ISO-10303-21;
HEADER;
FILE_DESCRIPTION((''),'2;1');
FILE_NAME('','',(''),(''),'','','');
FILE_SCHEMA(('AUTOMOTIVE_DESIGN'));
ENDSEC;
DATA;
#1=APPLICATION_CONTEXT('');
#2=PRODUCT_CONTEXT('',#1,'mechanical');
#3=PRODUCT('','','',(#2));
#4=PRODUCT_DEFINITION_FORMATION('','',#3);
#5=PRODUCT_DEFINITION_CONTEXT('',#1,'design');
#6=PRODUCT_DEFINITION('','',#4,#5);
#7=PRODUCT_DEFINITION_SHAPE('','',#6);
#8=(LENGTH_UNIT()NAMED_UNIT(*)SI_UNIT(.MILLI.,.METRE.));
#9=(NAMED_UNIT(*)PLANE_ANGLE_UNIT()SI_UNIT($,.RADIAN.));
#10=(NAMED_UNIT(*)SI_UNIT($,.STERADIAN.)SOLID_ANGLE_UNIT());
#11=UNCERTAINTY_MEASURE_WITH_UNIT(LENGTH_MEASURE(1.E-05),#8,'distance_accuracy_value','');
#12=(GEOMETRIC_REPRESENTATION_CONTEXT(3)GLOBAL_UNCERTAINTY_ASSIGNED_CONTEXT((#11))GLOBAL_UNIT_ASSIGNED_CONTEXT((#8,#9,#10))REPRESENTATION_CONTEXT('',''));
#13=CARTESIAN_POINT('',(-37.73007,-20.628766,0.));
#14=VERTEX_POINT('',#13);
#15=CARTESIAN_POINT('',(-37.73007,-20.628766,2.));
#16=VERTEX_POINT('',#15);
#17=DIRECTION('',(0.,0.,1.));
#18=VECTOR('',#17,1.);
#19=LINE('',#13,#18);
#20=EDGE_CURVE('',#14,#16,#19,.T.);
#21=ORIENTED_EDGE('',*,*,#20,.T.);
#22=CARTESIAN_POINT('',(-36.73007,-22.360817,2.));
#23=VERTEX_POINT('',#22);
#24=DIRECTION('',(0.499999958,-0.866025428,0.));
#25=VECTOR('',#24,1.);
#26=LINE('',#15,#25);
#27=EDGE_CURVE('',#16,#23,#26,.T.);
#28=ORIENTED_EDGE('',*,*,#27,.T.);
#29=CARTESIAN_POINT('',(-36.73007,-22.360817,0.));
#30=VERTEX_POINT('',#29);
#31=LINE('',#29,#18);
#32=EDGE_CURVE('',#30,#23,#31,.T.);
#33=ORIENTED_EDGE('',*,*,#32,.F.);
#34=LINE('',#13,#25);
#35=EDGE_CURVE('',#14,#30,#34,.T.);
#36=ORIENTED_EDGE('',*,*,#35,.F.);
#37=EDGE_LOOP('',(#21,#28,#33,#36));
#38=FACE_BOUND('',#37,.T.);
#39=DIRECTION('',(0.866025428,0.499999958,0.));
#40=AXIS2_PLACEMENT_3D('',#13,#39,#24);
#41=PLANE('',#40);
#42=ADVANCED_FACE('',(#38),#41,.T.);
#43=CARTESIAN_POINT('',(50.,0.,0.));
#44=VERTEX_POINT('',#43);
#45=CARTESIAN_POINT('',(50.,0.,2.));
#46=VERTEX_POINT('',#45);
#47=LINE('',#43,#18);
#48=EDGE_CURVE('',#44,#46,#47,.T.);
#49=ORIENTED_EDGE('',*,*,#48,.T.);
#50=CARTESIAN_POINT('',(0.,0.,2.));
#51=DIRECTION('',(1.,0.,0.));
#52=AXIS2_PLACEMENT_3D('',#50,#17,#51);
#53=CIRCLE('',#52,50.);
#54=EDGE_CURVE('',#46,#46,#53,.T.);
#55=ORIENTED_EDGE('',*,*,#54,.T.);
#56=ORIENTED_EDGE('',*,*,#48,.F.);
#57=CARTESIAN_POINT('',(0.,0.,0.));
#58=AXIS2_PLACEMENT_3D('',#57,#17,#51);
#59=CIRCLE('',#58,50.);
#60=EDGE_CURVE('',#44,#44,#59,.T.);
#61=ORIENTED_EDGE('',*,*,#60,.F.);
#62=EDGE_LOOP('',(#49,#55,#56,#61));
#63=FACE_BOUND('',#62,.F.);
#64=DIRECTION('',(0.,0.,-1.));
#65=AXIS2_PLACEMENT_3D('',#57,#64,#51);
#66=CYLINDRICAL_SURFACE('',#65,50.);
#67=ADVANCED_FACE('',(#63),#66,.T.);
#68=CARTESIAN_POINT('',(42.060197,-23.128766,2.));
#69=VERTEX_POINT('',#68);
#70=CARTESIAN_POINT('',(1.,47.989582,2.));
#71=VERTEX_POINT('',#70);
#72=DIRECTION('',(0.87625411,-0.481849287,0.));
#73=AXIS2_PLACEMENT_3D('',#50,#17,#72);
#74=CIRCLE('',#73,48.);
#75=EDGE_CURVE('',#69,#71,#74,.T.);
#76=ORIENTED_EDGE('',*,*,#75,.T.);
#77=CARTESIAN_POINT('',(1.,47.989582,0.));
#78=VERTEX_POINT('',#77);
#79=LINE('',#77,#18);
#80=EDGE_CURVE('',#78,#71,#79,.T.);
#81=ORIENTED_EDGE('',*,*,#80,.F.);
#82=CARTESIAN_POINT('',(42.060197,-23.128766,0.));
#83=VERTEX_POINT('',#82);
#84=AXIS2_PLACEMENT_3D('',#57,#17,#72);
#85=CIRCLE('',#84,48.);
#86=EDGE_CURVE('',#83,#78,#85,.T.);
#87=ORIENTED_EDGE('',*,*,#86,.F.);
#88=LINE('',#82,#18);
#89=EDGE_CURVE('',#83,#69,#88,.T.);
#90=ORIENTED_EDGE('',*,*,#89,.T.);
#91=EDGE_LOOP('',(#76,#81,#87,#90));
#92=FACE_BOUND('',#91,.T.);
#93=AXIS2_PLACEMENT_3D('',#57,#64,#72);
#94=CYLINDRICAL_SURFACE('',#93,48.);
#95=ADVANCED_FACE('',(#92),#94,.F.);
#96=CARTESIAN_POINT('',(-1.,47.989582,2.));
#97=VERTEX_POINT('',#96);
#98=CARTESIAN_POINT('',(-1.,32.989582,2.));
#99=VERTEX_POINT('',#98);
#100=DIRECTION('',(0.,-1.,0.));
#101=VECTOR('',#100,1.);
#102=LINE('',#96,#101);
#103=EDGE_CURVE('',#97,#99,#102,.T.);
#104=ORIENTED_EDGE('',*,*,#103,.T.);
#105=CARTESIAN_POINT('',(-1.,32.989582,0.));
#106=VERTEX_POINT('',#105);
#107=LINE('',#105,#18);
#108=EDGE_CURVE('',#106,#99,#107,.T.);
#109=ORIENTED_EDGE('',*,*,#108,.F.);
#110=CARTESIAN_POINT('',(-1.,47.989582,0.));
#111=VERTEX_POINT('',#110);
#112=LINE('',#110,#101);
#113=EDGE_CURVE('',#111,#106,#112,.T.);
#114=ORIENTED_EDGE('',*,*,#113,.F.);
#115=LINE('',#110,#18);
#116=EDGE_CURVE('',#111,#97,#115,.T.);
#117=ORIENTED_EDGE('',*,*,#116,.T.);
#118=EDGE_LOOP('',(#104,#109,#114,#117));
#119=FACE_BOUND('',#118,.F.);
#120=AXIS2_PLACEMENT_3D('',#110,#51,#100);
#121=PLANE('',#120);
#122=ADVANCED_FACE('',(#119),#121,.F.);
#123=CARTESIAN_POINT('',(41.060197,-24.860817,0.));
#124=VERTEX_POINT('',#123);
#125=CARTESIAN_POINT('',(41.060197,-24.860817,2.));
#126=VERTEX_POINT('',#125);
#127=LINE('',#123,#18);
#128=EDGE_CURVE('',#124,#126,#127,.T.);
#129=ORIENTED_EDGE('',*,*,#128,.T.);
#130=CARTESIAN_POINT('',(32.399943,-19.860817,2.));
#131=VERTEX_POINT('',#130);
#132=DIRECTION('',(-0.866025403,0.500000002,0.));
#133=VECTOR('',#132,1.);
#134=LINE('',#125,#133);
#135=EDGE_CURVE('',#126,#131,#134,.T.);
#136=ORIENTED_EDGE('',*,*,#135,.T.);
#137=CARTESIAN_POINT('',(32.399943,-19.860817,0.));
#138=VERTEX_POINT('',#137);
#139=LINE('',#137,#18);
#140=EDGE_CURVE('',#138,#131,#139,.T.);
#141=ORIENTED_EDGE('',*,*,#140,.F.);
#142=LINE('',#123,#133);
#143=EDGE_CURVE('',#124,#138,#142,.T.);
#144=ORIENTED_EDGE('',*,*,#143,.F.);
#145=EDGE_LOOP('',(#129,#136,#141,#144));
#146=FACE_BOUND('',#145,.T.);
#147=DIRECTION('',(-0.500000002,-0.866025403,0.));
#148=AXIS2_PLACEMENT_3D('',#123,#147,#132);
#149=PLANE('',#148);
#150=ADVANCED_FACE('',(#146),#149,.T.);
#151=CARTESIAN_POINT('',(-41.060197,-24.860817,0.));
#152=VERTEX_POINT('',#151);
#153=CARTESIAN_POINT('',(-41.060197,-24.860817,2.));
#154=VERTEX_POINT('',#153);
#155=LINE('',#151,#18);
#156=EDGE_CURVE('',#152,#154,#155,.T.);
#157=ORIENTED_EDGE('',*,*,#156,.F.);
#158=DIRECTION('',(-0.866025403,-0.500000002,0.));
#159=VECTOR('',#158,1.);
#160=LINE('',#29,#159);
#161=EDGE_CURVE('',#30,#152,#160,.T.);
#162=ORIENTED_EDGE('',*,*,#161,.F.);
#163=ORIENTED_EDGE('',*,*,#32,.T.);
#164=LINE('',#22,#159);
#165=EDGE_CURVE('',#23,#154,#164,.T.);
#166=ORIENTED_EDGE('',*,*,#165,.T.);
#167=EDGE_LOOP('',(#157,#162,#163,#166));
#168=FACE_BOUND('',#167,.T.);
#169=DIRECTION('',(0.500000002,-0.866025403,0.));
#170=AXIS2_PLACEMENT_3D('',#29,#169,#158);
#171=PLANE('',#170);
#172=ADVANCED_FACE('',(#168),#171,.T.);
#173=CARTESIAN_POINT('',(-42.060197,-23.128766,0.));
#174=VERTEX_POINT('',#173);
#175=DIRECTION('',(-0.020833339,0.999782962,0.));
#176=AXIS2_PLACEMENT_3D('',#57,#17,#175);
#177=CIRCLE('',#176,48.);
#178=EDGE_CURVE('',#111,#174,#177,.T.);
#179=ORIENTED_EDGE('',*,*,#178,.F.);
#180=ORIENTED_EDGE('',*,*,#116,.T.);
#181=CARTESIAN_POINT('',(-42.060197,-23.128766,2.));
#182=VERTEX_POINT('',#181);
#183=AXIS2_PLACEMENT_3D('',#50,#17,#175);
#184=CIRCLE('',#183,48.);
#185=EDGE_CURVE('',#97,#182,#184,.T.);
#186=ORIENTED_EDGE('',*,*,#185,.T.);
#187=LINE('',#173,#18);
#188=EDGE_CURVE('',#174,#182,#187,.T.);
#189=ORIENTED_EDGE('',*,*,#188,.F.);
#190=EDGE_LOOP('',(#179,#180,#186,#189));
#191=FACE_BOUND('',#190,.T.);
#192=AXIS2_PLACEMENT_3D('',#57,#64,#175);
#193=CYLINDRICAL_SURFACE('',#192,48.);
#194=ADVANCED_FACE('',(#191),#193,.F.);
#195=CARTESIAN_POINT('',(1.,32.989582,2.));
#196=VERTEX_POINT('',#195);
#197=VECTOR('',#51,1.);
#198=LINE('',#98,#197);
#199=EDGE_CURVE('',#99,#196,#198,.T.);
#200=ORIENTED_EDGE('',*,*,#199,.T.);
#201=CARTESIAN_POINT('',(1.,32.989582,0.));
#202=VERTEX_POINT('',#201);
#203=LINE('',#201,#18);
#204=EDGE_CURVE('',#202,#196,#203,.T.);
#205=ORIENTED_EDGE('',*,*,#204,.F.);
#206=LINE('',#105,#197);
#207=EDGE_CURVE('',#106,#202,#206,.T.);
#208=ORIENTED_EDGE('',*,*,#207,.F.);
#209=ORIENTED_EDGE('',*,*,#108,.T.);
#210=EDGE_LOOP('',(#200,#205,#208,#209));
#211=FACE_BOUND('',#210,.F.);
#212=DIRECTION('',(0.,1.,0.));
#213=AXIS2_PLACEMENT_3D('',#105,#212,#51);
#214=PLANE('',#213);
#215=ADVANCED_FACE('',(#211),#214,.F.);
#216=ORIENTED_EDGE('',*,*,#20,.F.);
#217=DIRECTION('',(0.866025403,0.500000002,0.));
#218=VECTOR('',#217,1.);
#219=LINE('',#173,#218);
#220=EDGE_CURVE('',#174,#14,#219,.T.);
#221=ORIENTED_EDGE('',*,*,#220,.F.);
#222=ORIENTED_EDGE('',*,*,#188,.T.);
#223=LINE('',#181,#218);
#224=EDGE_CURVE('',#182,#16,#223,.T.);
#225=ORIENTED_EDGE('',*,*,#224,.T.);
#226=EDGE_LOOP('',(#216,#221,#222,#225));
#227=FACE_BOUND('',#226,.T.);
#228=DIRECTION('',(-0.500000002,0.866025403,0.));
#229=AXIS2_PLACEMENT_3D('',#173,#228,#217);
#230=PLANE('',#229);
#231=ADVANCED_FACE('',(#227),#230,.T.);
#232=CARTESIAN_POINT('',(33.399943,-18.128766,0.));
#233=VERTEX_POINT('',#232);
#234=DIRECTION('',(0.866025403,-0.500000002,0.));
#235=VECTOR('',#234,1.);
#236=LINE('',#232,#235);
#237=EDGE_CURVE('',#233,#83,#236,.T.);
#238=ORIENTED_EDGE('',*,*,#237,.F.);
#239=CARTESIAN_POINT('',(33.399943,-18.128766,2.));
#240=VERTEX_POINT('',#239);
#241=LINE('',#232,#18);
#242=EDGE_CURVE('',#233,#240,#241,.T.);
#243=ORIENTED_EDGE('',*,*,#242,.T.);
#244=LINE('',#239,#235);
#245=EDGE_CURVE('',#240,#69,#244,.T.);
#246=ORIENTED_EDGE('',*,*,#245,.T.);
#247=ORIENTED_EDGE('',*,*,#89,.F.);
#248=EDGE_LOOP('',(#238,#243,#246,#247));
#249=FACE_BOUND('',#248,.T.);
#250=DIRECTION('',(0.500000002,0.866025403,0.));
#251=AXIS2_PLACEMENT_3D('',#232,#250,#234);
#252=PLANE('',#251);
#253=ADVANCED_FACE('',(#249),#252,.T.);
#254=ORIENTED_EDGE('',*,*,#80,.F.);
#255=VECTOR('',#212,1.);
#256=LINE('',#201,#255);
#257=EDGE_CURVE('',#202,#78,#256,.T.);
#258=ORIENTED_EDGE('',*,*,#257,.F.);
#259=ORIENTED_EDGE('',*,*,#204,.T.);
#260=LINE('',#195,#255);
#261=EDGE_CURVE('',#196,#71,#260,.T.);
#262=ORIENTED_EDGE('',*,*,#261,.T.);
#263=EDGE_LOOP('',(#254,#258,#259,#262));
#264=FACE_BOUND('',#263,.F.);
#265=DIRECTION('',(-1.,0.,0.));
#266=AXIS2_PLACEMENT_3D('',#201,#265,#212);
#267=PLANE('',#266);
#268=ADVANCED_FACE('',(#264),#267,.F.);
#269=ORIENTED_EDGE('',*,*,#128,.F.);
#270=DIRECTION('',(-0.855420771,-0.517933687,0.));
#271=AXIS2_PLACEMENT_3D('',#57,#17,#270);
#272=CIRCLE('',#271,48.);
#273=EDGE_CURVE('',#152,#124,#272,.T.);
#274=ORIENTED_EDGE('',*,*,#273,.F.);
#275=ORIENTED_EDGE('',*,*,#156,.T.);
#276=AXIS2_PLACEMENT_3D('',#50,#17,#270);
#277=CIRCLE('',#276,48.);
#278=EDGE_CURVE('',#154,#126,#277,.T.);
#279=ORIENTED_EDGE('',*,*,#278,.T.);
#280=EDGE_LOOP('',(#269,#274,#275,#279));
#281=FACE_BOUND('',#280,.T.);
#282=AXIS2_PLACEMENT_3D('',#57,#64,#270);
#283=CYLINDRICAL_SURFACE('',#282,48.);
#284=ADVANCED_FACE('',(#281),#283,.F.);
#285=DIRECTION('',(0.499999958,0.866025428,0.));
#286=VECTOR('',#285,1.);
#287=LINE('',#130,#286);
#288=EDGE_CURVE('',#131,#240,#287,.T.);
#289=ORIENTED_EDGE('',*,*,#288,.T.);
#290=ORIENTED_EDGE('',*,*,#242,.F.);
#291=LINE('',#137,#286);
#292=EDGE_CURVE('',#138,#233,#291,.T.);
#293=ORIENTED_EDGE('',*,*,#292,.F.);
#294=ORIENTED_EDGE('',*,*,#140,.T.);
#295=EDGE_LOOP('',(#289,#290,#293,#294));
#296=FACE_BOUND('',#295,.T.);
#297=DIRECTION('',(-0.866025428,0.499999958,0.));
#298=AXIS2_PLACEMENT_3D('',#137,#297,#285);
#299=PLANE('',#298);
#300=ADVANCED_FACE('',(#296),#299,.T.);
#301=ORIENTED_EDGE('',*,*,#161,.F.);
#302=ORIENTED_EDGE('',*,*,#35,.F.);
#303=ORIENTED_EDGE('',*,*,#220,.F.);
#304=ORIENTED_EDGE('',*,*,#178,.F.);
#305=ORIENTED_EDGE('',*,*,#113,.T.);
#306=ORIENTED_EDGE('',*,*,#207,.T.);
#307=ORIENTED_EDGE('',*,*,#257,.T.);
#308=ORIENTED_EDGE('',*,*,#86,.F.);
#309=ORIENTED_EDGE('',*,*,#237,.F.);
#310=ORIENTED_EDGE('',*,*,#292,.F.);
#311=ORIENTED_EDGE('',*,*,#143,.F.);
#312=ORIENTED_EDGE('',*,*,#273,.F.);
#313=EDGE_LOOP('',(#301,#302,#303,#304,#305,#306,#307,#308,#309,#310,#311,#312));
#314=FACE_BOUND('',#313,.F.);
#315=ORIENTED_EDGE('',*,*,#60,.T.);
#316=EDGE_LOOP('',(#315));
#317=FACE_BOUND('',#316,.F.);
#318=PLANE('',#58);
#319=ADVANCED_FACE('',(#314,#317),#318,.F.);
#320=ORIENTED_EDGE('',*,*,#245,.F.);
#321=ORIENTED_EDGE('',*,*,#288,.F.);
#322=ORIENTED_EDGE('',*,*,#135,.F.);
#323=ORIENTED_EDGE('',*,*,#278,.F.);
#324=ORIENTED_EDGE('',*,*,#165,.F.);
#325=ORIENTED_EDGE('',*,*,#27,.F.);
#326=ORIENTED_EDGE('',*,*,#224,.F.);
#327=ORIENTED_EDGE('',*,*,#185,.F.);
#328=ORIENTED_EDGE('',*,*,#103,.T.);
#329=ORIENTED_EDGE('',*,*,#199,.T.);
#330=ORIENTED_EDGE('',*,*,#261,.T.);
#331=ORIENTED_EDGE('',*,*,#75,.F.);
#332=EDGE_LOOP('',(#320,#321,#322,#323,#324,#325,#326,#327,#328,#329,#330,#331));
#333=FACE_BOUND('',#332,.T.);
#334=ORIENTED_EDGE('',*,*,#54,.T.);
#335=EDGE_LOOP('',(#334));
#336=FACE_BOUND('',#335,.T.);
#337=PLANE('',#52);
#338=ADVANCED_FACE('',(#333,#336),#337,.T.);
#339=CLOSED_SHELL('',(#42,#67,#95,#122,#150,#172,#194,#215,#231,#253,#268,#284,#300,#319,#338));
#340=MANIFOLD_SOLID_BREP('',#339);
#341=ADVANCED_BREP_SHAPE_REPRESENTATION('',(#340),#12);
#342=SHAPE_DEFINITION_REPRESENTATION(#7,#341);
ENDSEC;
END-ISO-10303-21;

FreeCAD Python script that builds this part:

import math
import FreeCAD as App
import Part
import Sketcher

V = App.Vector
Q = App.Units.Quantity

doc = App.newDocument("Part")
params = doc.addObject("Spreadsheet::Sheet", "Params")
for row, (alias, value) in enumerate([
    ("sketch1_diameter", "100 mm"),
    ("sketch1_radius", "48 mm"),
    ("sketch1_width", "2 mm"),
    ("sketch1_height", "15 mm"),
    ("sketch1_length", "10 mm"),
    ("pad1_length", "2 mm"),
], start=1):
    params.set(f"A{row}", alias)
    params.set(f"B{row}", "=" + value)
    params.setAlias(f"B{row}", alias)

body = doc.addObject("PartDesign::Body", "Body")

sketch1 = body.newObject("Sketcher::SketchObject", "Sketch")
sketch1.AttachmentSupport = (doc.getObject("XY_Plane"), [""])
sketch1.MapMode = "FlatFace"
sketch1.addGeometry([
    Part.Circle(V(0, 0, 0), V(0, 0, 1), 50),
    Part.ArcOfCircle(Part.Circle(V(0, 0, 0), V(0, 0, 1), 48), math.radians(91), math.radians(209)),
    Part.LineSegment(V(-1, 48, 0), V(-1, 33, 0)),
    Part.LineSegment(V(-1, 33, 0), V(1, 33, 0)),
    Part.LineSegment(V(1, 33, 0), V(1, 48, 0)),
    Part.ArcOfCircle(Part.Circle(V(0, 0, 0), V(0, 0, 1), 48), math.radians(-29), math.radians(89)),
    Part.LineSegment(V(42.1, -23.1, 0), V(33.4, -18.1, 0)),
    Part.LineSegment(V(33.4, -18.1, 0), V(32.4, -19.9, 0)),
    Part.LineSegment(V(32.4, -19.9, 0), V(41.1, -24.9, 0)),
    Part.ArcOfCircle(Part.Circle(V(0, 0, 0), V(0, 0, 1), 48), math.radians(-149), math.radians(-31)),
    Part.LineSegment(V(-41.1, -24.9, 0), V(-36.7, -22.4, 0)),
    Part.LineSegment(V(-36.7, -22.4, 0), V(-37.7, -20.6, 0)),
    Part.LineSegment(V(-37.7, -20.6, 0), V(-42.1, -23.1, 0)),
], False)
sketch1.addConstraint([
    Sketcher.Constraint("Coincident", 1, 1, 2, 1),
    Sketcher.Constraint("Coincident", 2, 2, 3, 1),
    Sketcher.Constraint("Coincident", 3, 2, 4, 1),
    Sketcher.Constraint("Coincident", 4, 2, 5, 2),
    Sketcher.Constraint("Coincident", 5, 1, 6, 1),
    Sketcher.Constraint("Coincident", 6, 2, 7, 1),
    Sketcher.Constraint("Coincident", 7, 2, 8, 1),
    Sketcher.Constraint("Coincident", 8, 2, 9, 2),
    Sketcher.Constraint("Coincident", 9, 1, 10, 1),
    Sketcher.Constraint("Coincident", 10, 2, 11, 1),
    Sketcher.Constraint("Coincident", 11, 2, 12, 1),
    Sketcher.Constraint("Coincident", 12, 2, 1, 2),
    Sketcher.Constraint("Vertical", 2),
    Sketcher.Constraint("Horizontal", 3),
    Sketcher.Constraint("Vertical", 4),
    Sketcher.Constraint("Coincident", 0, 3, -1, 1),
    Sketcher.Constraint("Coincident", 1, 3, -1, 1),
    Sketcher.Constraint("Coincident", 5, 3, -1, 1),
    Sketcher.Constraint("Coincident", 9, 3, -1, 1),
    Sketcher.Constraint("Equal", 1, 5),
    Sketcher.Constraint("Equal", 5, 9),
    Sketcher.Constraint("Perpendicular", 6, 7),
    Sketcher.Constraint("Perpendicular", 7, 8),
    Sketcher.Constraint("Perpendicular", 10, 11),
    Sketcher.Constraint("Perpendicular", 11, 12),
    Sketcher.Constraint("Horizontal", 1, 1, 4, 2),
    Sketcher.Constraint("Horizontal", 8, 2, 9, 1),
    Sketcher.Constraint("Horizontal", 5, 1, 12, 2),
    Sketcher.Constraint("Equal", 6, 8),
    Sketcher.Constraint("Equal", 10, 12),
    Sketcher.Constraint("Diameter", 0, 100.0),
    Sketcher.Constraint("Radius", 1, 48.0),
    Sketcher.Constraint("DistanceX", 3, 1, 3, 2, 2.0),
    Sketcher.Constraint("DistanceY", 2, 2, 2, 1, 15.0),
    Sketcher.Constraint("Angle", 6, Q("150 deg")),
    Sketcher.Constraint("Distance", 6, 10.0),
    Sketcher.Constraint("Distance", 7, 2.0),
    Sketcher.Constraint("Distance", 10, 5.0),
])
sketch1.setExpression("Constraints[30]", "Params.sketch1_diameter")
sketch1.setExpression("Constraints[31]", "Params.sketch1_radius")
sketch1.setExpression("Constraints[32]", "Params.sketch1_width")
sketch1.setExpression("Constraints[33]", "Params.sketch1_height")
sketch1.setExpression("Constraints[35]", "Params.sketch1_length")
pad1 = body.newObject("PartDesign::Pad", "Pad")
pad1.Profile = sketch1
pad1.setExpression("Length", "Params.pad1_length")

doc.recompute()
